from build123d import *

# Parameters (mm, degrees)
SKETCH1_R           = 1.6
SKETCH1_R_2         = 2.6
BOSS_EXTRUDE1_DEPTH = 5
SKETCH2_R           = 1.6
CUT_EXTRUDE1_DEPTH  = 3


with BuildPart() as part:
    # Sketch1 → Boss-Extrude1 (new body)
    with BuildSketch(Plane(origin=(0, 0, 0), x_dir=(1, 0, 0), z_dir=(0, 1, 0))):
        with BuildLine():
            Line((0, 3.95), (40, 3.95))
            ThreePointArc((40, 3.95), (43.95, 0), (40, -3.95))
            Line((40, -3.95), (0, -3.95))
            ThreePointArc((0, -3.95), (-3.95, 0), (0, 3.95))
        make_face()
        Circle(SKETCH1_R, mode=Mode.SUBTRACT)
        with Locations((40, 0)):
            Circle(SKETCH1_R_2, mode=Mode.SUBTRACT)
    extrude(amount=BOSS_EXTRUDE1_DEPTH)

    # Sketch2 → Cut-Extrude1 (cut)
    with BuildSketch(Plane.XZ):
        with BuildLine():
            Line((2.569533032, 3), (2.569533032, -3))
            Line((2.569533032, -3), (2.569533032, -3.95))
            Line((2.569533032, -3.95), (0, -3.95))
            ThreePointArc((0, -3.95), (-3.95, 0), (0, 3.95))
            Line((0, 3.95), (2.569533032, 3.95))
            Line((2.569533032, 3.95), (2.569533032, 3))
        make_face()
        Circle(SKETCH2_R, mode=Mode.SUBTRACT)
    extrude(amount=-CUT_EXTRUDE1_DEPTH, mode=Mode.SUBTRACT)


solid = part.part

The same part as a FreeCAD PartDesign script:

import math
import FreeCAD as App
import Part
import Sketcher

V = App.Vector

doc = App.newDocument("Part")
body = doc.addObject("PartDesign::Body", "Body")

# Sketch on XZ plane
sketch1 = body.newObject("Sketcher::SketchObject", "Sketch")
sketch1.AttachmentSupport = (doc.getObject("XZ_Plane"), [""])
sketch1.MapMode = "FlatFace"
sketch1.addGeometry([
    Part.LineSegment(V(40, -4, 0), V(0, -4, 0)),  # 0
    Part.ArcOfCircle(Part.Circle(V(0, 0, 0), V(0, 0, 1), 4), math.radians(90), math.radians(270)),  # 1
    Part.LineSegment(V(0, 4, 0), V(40, 4, 0)),  # 2
    Part.ArcOfCircle(Part.Circle(V(40, 0, 0), V(0, 0, 1), 4), math.radians(-90), math.radians(90)),  # 3
    Part.Circle(V(40, 0, 0), V(0, 0, 1), 2.6),  # 4
    Part.Circle(V(0, 0, 0), V(0, 0, 1), 1.6),  # 5
], False)
sketch1.addConstraint([
    Sketcher.Constraint("Tangent", 0, 2, 1, 2),
    Sketcher.Constraint("Tangent", 1, 1, 2, 1),
    Sketcher.Constraint("Tangent", 2, 2, 3, 2),
    Sketcher.Constraint("Tangent", 3, 1, 0, 1),
    Sketcher.Constraint("Horizontal", 0),
    Sketcher.Constraint("Horizontal", 2),
    Sketcher.Constraint("Coincident", 1, 3, -1, 1),
    Sketcher.Constraint("Coincident", 5, 3, -1, 1),
    Sketcher.Constraint("Coincident", 4, 3, 3, 3),
    Sketcher.Constraint("Diameter", 4, 5.2),
    Sketcher.Constraint("Diameter", 5, 3.2),
    Sketcher.Constraint("DistanceX", 0, 2, 0, 1, 40.0),
    Sketcher.Constraint("Radius", 1, 3.95),
])
pad1 = body.newObject("PartDesign::Pad", "Pad")
pad1.Profile = sketch1
pad1.Length = 5
pad1.Reversed = True

# Sketch on XZ plane
sketch2 = body.newObject("Sketcher::SketchObject", "Sketch001")
sketch2.AttachmentSupport = (doc.getObject("XZ_Plane"), [""])
sketch2.MapMode = "FlatFace"
sketch2.addGeometry([
    Part.LineSegment(V(0, -4, 0), V(2.6, -4, 0)),  # 0
    Part.LineSegment(V(2.6, -4, 0), V(2.6, 4, 0)),  # 1
    Part.LineSegment(V(2.6, 4, 0), V(0, 4, 0)),  # 2
    Part.ArcOfCircle(Part.Circle(V(0, 0, 0), V(0, 0, 1), 4), math.radians(90), math.radians(270)),  # 3
    Part.Circle(V(0, 0, 0), V(0, 0, 1), 1.6),  # 4
], False)
sketch2.addConstraint([
    Sketcher.Constraint("Coincident", 0, 2, 1, 1),
    Sketcher.Constraint("Coincident", 1, 2, 2, 1),
    Sketcher.Constraint("Tangent", 2, 2, 3, 1),
    Sketcher.Constraint("Tangent", 3, 2, 0, 1),
    Sketcher.Constraint("Horizontal", 0),
    Sketcher.Constraint("Vertical", 1),
    Sketcher.Constraint("Horizontal", 2),
    Sketcher.Constraint("Coincident", 3, 3, -1, 1),
    Sketcher.Constraint("Coincident", 4, 3, -1, 1),
    Sketcher.Constraint("Diameter", 4, 3.2),
    Sketcher.Constraint("Radius", 3, 3.95),
    Sketcher.Constraint("DistanceX", 0, 1, 0, 2, 2.569533),
])
pocket1 = body.newObject("PartDesign::Pocket", "Pocket")
pocket1.Profile = sketch2
pocket1.Length = 3

doc.recompute()
